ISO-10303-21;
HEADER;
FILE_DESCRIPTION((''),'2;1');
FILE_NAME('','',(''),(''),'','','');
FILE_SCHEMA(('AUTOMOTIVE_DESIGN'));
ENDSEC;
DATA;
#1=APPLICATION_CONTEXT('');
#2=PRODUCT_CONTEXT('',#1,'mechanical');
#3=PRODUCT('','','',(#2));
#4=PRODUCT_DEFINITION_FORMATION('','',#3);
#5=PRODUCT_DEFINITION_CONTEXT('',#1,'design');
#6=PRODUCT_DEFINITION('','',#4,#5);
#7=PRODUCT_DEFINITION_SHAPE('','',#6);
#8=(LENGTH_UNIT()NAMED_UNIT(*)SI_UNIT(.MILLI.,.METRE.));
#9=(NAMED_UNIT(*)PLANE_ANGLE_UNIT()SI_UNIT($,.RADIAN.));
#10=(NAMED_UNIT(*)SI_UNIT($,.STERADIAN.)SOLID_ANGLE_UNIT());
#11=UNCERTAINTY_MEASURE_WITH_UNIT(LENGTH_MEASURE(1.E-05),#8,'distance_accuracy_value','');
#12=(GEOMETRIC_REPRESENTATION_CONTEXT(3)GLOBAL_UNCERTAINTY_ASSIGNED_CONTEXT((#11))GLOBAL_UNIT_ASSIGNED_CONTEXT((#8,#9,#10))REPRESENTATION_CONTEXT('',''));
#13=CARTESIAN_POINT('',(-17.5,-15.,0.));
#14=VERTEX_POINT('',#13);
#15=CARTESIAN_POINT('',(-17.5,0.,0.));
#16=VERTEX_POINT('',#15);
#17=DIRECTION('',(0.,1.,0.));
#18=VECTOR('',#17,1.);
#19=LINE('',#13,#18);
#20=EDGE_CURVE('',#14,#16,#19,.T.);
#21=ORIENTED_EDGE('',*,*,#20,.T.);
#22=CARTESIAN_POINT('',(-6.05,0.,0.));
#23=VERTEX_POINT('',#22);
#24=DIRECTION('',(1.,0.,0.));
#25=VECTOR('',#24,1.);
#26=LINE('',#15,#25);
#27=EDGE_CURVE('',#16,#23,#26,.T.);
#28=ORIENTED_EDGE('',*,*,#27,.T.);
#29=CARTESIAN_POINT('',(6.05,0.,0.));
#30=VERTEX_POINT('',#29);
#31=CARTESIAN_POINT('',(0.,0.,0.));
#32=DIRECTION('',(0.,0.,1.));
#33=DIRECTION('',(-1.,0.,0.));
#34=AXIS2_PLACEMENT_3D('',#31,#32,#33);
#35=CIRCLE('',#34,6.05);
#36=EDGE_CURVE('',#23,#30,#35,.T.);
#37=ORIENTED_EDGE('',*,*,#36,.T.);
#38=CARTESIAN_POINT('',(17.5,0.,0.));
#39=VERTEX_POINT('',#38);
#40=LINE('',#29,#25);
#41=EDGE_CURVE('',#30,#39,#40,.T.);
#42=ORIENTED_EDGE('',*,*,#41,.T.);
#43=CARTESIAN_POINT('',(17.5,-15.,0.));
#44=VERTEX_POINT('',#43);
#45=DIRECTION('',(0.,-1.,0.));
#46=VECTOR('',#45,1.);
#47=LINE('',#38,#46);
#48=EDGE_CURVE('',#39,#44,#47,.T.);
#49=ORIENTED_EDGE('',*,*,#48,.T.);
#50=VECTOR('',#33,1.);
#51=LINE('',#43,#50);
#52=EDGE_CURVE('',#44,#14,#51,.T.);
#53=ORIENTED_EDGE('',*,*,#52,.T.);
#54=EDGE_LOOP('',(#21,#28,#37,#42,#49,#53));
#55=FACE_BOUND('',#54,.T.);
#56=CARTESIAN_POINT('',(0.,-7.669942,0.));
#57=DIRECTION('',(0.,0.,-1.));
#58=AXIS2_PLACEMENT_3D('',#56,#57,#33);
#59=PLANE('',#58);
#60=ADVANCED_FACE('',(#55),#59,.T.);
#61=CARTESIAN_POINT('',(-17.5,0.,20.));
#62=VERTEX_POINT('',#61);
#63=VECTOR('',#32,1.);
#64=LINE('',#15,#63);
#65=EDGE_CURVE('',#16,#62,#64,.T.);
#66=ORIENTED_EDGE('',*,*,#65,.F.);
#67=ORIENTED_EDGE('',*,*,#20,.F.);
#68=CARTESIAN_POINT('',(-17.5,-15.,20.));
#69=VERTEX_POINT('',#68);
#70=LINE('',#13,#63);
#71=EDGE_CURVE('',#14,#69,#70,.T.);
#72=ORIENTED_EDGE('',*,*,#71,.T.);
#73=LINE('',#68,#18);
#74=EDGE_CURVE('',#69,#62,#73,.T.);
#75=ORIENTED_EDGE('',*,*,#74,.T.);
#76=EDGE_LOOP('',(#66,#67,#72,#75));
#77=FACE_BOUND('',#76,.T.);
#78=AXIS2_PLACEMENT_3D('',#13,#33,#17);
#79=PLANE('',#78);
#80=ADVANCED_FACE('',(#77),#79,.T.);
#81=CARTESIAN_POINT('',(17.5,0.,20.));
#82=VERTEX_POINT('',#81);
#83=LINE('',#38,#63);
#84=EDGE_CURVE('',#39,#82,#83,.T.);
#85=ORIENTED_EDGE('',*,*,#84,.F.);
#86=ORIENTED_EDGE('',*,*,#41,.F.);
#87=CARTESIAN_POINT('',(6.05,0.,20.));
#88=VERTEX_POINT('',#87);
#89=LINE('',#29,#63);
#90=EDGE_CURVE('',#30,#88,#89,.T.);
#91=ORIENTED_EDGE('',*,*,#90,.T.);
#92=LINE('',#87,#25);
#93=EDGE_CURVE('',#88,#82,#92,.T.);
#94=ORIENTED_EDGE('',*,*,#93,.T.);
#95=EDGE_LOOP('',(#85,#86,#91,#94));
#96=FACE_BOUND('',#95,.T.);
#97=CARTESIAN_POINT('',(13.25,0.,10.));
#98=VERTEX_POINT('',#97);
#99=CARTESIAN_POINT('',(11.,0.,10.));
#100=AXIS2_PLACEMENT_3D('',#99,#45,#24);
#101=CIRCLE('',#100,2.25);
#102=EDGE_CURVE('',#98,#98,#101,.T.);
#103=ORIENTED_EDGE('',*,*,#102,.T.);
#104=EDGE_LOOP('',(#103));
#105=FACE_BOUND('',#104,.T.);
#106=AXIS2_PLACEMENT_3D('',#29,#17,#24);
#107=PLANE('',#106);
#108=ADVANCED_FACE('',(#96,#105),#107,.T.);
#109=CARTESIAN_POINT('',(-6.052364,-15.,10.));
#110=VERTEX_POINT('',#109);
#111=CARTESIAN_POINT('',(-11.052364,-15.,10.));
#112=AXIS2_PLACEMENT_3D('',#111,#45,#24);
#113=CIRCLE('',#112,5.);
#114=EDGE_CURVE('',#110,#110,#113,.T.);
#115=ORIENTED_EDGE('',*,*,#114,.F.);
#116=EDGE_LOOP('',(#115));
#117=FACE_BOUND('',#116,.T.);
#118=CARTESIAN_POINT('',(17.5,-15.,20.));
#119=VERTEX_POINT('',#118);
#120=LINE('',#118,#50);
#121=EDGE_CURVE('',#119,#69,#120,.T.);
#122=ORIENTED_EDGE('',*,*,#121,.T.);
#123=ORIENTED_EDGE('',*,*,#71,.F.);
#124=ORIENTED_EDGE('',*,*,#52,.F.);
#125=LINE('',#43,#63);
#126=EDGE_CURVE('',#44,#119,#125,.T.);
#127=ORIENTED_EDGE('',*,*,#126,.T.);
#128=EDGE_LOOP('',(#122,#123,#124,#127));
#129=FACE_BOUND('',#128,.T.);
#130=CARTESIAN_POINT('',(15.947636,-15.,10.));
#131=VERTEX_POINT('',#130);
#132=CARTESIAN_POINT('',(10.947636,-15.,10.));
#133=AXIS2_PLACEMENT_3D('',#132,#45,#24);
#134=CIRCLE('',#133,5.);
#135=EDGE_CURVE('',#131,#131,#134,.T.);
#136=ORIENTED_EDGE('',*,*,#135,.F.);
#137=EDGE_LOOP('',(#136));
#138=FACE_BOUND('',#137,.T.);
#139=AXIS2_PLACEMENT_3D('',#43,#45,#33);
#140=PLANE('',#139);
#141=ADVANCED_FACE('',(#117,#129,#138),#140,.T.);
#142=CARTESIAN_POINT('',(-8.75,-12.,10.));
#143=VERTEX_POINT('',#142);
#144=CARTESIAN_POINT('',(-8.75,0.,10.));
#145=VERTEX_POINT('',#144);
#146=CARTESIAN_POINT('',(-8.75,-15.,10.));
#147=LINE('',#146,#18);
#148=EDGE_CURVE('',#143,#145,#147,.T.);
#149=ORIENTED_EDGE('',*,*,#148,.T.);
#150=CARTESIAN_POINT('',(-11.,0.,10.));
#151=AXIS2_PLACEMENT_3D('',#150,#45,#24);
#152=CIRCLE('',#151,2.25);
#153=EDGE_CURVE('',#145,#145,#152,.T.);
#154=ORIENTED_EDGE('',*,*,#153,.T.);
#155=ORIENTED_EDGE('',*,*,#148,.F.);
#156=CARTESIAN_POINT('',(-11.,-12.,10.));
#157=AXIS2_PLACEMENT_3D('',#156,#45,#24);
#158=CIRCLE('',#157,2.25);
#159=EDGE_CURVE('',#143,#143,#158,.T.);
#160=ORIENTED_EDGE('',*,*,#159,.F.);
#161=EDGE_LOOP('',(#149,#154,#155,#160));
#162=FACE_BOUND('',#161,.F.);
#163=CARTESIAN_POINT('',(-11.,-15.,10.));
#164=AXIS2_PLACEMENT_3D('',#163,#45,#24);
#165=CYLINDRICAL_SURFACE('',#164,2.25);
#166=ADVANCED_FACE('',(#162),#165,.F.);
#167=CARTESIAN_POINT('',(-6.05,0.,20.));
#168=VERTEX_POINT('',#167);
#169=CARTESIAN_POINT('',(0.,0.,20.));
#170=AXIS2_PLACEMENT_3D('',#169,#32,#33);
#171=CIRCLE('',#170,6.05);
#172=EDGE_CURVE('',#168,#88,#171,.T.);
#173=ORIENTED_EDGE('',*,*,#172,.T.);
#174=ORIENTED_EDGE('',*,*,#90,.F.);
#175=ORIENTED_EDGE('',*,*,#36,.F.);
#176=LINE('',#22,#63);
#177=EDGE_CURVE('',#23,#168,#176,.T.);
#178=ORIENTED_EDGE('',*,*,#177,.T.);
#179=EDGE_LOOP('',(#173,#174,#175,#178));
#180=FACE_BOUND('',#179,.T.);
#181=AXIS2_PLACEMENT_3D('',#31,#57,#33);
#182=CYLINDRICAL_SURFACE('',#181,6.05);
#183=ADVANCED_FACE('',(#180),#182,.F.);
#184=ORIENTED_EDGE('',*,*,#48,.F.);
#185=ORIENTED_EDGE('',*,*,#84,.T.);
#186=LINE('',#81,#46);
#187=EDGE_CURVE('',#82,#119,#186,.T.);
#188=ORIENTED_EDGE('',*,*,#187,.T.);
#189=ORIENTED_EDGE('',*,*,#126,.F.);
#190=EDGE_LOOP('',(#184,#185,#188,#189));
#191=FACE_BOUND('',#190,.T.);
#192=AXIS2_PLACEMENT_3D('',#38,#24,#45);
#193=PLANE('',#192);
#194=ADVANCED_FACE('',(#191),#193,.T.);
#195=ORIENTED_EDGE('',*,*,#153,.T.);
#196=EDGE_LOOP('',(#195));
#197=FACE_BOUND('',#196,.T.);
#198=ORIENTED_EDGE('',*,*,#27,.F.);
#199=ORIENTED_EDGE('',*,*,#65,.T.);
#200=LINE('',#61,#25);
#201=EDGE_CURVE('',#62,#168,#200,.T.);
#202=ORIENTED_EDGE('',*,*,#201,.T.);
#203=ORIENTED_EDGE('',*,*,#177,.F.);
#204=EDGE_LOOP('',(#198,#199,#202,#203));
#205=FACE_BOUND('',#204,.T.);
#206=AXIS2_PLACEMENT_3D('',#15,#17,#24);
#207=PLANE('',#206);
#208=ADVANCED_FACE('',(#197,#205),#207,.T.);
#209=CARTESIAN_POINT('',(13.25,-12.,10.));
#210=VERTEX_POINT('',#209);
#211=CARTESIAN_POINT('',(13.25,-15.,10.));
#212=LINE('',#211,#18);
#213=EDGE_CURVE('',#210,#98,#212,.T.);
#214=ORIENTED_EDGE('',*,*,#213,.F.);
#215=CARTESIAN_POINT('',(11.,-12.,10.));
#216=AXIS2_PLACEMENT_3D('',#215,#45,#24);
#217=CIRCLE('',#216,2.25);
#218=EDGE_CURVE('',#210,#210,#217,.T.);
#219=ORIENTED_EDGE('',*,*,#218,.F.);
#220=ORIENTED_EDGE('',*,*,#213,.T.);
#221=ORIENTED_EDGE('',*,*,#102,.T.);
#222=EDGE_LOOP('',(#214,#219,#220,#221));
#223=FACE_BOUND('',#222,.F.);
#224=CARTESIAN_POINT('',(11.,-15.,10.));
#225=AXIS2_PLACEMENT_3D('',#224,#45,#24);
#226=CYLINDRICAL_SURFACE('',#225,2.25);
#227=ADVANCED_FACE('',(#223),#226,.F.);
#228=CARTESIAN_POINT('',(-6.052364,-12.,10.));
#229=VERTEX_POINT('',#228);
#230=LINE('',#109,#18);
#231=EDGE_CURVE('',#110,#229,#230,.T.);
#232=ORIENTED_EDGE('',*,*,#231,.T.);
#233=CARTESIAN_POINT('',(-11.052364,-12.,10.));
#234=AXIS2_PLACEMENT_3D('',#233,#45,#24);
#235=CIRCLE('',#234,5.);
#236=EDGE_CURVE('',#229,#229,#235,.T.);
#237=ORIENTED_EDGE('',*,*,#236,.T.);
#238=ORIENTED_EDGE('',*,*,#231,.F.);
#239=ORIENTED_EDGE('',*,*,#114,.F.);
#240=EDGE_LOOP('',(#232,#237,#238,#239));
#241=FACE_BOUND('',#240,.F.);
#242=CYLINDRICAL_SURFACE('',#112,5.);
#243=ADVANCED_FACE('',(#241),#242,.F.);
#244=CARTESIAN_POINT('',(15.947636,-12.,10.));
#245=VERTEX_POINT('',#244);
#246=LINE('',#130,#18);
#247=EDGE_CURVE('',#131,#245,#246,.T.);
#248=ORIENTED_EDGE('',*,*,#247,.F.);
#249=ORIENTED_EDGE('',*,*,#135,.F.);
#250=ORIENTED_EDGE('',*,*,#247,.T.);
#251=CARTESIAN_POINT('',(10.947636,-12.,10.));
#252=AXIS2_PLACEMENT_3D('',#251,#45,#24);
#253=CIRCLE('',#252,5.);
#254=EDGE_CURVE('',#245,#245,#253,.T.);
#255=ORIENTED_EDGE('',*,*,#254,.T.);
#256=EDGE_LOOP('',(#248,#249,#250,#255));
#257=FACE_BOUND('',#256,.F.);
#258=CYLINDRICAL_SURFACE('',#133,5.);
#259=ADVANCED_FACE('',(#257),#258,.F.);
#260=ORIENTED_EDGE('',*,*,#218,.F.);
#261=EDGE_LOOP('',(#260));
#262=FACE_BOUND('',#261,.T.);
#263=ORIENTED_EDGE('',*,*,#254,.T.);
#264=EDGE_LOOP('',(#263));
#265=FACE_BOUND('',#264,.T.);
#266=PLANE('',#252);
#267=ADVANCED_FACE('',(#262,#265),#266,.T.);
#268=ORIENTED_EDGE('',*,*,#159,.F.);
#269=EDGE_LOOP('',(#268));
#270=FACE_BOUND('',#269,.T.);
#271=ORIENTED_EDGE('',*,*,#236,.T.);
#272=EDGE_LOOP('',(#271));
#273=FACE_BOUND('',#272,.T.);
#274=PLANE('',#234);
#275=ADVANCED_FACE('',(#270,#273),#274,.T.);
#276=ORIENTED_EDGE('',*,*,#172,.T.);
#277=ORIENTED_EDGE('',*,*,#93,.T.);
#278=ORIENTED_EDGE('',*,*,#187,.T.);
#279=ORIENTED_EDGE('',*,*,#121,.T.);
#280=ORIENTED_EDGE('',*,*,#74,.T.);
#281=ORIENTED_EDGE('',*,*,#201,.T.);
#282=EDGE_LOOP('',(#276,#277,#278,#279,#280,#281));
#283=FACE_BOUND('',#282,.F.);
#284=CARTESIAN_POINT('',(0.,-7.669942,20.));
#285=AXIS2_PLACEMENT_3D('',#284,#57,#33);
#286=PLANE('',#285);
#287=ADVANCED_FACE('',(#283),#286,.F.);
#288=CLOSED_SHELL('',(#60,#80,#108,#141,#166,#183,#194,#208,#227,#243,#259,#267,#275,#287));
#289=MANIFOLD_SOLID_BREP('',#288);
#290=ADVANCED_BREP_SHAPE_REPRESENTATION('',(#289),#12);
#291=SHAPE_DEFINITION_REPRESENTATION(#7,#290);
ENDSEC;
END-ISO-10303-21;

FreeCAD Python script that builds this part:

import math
import FreeCAD as App
import Part
import Sketcher
Q = App.Units.Quantity

doc = App.newDocument("Part")
params = doc.addObject("Spreadsheet::Sheet", "Params")
for row, (alias, value) in enumerate([
    ("sketch1_width", "35 mm"),
    ("sketch1_height", "15 mm"),
    ("sketch1_radius", "6.05 mm"),
    ("pad1_length", "20 mm"),
    ("sketch2_diameter", "4.5 mm"),
    ("sketch3_diameter", "10 mm"),
    ("pocket2_length", "3 mm"),
], start=1):
    params.set(f"A{row}", alias)
    params.set(f"B{row}", "=" + value)
    params.setAlias(f"B{row}", alias)

body = doc.addObject("PartDesign::Body", "Body")

sketch1 = body.newObject("Sketcher::SketchObject", "Sketch")
sketch1.AttachmentSupport = (doc.getObject("XY_Plane"), [""])
sketch1.MapMode = "FlatFace"
sketch1.addGeometry([
    Part.ArcOfCircle(Part.Circle(App.Vector(0, 0, 0), App.Vector(0, 0, 1), 6), math.radians(180), math.radians(360)),
    Part.LineSegment(App.Vector(-6, 0, 0), App.Vector(-18, 0, 0)),
    Part.LineSegment(App.Vector(-18, 0, 0), App.Vector(-18, -15, 0)),
    Part.LineSegment(App.Vector(-18, -15, 0), App.Vector(18, -15, 0)),
    Part.LineSegment(App.Vector(18, -15, 0), App.Vector(18, 0, 0)),
    Part.LineSegment(App.Vector(18, 0, 0), App.Vector(6, 0, 0)),
], False)
sketch1.addConstraint([
    Sketcher.Constraint("Coincident", 0, 1, 1, 1),
    Sketcher.Constraint("Coincident", 1, 2, 2, 1),
    Sketcher.Constraint("Coincident", 2, 2, 3, 1),
    Sketcher.Constraint("Coincident", 3, 2, 4, 1),
    Sketcher.Constraint("Coincident", 4, 2, 5, 1),
    Sketcher.Constraint("Coincident", 5, 2, 0, 2),
    Sketcher.Constraint("Horizontal", 1),
    Sketcher.Constraint("Vertical", 2),
    Sketcher.Constraint("Horizontal", 3),
    Sketcher.Constraint("Vertical", 4),
    Sketcher.Constraint("Horizontal", 5),
    Sketcher.Constraint("Coincident", 0, 3, -1, 1),
    Sketcher.Constraint("Symmetric", 1, 2, 4, 2, -1, 1),
    Sketcher.Constraint("PointOnObject", 0, 1, -1),
    Sketcher.Constraint("DistanceX", 3, 1, 3, 2, Q("35 mm")),
    Sketcher.Constraint("DistanceY", 2, 2, 2, 1, Q("15 mm")),
    Sketcher.Constraint("Radius", 0, Q("6.05 mm")),
])
sketch1.setExpression("Constraints[14]", "Params.sketch1_width")
sketch1.setExpression("Constraints[15]", "Params.sketch1_height")
sketch1.setExpression("Constraints[16]", "Params.sketch1_radius")
pad1 = body.newObject("PartDesign::Pad", "Pad")
pad1.Profile = sketch1
pad1.setExpression("Length", "Params.pad1_length")

sketch2 = body.newObject("Sketcher::SketchObject", "Sketch001")
sketch2.AttachmentSupport = (doc.getObject("XZ_Plane"), [""])
sketch2.MapMode = "FlatFace"
sketch2.AttachmentOffset = App.Placement(App.Vector(0, 0, 15), App.Rotation())
sketch2.addGeometry([
    Part.Circle(App.Vector(-11, 10, 0), App.Vector(0, 0, 1), 2.2),
    Part.Circle(App.Vector(11, 10, 0), App.Vector(0, 0, 1), 2.2),
], False)
sketch2.addConstraint([
    Sketcher.Constraint("Equal", 0, 1),
    Sketcher.Constraint("Symmetric", 0, 3, 1, 3, -2),
    Sketcher.Constraint("Diameter", 0, Q("4.5 mm")),
    Sketcher.Constraint("DistanceX", 0, 3, -1, 1, Q("11 mm")),
    Sketcher.Constraint("DistanceY", -1, 1, 0, 3, Q("10 mm")),
])
sketch2.setExpression("Constraints[2]", "Params.sketch2_diameter")
pocket1 = body.newObject("PartDesign::Pocket", "Pocket")
pocket1.Profile = sketch2
pocket1.Type = "ThroughAll"

sketch3 = body.newObject("Sketcher::SketchObject", "Sketch002")
sketch3.AttachmentSupport = (doc.getObject("XZ_Plane"), [""])
sketch3.MapMode = "FlatFace"
sketch3.AttachmentOffset = App.Placement(App.Vector(0, 0, 15), App.Rotation())
sketch3.addGeometry([
    Part.Circle(App.Vector(-11, 10, 0), App.Vector(0, 0, 1), 5),
    Part.Circle(App.Vector(11, 10, 0), App.Vector(0, 0, 1), 5),
], False)
sketch3.addConstraint([
    Sketcher.Constraint("Equal", 0, 1),
    Sketcher.Constraint("Horizontal", 0, 3, 1, 3),
    Sketcher.Constraint("Diameter", 0, Q("10 mm")),
    Sketcher.Constraint("DistanceY", -1, 1, 0, 3, Q("10 mm")),
    Sketcher.Constraint("DistanceX", 0, 3, 1, 3, Q("22 mm")),
    Sketcher.Constraint("DistanceX", 0, 3, -1, 1, Q("11.052364 mm")),
])
sketch3.setExpression("Constraints[2]", "Params.sketch3_diameter")
pocket2 = body.newObject("PartDesign::Pocket", "Pocket001")
pocket2.Profile = sketch3
pocket2.setExpression("Length", "Params.pocket2_length")

doc.recompute()
